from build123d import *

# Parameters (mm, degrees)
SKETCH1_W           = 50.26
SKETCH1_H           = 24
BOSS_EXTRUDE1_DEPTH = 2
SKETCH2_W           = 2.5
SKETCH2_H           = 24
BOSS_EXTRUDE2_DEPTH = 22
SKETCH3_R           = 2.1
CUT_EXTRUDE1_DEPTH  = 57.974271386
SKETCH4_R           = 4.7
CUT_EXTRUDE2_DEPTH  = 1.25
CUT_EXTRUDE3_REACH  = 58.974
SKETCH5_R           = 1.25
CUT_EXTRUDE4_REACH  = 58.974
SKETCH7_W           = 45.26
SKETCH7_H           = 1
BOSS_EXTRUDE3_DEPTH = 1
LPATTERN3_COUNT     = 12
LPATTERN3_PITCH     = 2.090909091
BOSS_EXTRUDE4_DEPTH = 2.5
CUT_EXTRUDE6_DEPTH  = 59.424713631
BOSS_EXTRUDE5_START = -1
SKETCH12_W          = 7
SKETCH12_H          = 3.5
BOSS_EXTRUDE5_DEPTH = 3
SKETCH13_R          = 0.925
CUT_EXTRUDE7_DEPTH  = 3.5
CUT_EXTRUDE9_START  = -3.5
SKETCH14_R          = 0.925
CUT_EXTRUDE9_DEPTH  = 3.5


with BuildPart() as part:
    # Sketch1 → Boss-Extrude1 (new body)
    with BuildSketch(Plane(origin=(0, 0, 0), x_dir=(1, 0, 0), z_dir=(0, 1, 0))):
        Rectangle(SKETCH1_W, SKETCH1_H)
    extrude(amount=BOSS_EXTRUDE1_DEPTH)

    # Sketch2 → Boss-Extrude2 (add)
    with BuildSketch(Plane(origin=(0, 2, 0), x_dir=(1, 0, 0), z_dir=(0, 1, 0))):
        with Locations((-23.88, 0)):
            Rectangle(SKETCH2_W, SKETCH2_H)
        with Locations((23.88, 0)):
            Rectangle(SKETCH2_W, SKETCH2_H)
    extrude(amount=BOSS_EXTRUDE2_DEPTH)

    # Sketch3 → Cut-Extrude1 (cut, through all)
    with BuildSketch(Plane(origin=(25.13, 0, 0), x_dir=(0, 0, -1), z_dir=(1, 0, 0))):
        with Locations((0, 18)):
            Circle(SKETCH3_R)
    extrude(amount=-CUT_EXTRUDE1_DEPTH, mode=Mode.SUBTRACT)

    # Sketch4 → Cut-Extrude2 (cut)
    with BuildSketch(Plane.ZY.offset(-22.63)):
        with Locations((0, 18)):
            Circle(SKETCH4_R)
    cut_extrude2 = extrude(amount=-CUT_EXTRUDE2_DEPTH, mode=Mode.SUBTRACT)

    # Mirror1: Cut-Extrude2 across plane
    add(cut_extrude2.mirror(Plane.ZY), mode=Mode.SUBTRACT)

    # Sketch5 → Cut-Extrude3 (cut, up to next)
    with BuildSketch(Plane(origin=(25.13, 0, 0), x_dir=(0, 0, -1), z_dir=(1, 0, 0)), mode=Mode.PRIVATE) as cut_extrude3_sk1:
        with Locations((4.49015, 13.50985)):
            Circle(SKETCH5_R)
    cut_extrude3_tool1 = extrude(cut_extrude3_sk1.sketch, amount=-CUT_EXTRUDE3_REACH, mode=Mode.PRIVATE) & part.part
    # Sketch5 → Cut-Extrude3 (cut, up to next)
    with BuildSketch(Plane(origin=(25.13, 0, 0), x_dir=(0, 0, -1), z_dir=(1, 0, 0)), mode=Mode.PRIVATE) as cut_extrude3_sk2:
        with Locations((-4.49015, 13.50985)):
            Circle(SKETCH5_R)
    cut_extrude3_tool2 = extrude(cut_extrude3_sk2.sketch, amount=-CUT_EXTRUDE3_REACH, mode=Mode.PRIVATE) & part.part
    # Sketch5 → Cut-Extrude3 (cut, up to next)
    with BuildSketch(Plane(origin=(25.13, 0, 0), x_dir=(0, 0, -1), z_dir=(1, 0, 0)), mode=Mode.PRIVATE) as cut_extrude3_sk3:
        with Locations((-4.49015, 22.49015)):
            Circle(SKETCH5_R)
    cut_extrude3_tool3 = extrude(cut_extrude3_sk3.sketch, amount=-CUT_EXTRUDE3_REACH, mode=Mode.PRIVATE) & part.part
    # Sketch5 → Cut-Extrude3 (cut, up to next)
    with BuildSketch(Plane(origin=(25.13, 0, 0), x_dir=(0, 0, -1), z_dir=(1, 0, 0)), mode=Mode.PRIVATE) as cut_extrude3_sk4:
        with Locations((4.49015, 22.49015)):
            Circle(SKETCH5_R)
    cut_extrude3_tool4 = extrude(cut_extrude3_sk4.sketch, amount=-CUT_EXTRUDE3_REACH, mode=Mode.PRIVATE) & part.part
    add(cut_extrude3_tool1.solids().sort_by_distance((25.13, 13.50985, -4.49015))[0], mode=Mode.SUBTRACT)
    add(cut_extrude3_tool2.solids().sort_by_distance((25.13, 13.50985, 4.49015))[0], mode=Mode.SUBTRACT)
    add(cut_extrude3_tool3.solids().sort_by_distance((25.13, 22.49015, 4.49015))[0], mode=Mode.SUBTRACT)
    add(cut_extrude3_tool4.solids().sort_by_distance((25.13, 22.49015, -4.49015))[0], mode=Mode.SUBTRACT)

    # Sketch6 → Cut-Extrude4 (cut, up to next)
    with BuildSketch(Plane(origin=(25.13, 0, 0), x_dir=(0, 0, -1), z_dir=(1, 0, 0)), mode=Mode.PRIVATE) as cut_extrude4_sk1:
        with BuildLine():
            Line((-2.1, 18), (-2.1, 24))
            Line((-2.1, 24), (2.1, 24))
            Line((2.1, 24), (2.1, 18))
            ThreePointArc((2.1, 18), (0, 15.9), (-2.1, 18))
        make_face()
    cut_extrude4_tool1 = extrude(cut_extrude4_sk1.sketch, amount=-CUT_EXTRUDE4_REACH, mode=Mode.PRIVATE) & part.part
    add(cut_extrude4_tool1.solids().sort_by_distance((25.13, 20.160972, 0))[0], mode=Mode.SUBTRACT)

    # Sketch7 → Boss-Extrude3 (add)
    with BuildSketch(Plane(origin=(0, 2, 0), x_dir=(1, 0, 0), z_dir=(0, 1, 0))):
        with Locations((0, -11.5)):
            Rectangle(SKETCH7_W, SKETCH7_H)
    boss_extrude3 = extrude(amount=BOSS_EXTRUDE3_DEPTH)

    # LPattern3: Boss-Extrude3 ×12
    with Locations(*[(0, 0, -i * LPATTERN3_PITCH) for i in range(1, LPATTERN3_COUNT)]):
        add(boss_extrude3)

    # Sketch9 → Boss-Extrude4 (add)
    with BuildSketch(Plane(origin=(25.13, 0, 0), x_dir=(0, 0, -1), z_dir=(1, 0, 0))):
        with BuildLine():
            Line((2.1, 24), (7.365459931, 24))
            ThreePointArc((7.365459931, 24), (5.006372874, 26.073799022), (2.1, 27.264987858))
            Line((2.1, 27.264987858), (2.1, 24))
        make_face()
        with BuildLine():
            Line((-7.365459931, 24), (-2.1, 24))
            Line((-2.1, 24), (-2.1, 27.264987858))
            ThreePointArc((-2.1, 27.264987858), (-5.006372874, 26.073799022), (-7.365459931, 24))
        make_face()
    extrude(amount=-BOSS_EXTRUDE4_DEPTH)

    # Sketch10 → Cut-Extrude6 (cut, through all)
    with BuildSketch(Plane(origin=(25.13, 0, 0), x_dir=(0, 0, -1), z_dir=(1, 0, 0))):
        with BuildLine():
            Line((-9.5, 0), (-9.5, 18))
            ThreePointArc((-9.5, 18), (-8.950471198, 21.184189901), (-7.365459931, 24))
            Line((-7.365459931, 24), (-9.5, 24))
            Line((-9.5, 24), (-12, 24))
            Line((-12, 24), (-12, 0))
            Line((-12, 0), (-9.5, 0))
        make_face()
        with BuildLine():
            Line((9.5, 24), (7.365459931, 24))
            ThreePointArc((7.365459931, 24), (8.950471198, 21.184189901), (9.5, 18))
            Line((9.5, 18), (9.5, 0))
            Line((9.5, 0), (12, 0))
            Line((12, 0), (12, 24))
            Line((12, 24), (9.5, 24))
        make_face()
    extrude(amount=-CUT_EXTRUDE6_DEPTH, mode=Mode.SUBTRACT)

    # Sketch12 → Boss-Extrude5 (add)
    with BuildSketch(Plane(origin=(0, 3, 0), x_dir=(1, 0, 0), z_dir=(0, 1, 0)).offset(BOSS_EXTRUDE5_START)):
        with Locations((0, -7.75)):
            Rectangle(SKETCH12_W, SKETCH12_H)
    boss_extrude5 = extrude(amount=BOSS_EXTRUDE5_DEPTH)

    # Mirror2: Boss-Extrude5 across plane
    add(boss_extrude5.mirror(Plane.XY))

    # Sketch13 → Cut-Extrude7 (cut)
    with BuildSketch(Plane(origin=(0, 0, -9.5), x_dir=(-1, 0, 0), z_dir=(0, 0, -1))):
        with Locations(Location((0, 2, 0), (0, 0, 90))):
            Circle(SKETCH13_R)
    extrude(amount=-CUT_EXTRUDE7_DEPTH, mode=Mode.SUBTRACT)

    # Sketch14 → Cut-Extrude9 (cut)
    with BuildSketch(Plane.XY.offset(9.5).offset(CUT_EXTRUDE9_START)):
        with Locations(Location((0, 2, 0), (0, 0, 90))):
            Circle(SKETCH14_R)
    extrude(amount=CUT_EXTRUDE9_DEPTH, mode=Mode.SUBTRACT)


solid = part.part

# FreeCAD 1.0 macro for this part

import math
import FreeCAD as App
import Part
import Sketcher

V = App.Vector
Q = App.Units.Quantity

doc = App.newDocument("Part")
body = doc.addObject("PartDesign::Body", "Body")

sketch1 = body.newObject("Sketcher::SketchObject", "Sketch")
sketch1.AttachmentSupport = (doc.getObject("XZ_Plane"), [""])
sketch1.MapMode = "FlatFace"
sketch1.addGeometry(Part.LineSegment(V(-25, -12, 0), V(-25, 12, 0)), False)
sketch1.addGeometry(Part.LineSegment(V(-25, 12, 0), V(25, 12, 0)), False)
sketch1.addGeometry(Part.LineSegment(V(25, 12, 0), V(25, -12, 0)), False)
sketch1.addGeometry(Part.LineSegment(V(25, -12, 0), V(-25, -12, 0)), False)
sketch1.addConstraint(Sketcher.Constraint("Coincident", 0, 2, 1, 1))
sketch1.addConstraint(Sketcher.Constraint("Coincident", 1, 2, 2, 1))
sketch1.addConstraint(Sketcher.Constraint("Coincident", 2, 2, 3, 1))
sketch1.addConstraint(Sketcher.Constraint("Coincident", 3, 2, 0, 1))
sketch1.addConstraint(Sketcher.Constraint("Vertical", 0))
sketch1.addConstraint(Sketcher.Constraint("Horizontal", 1))
sketch1.addConstraint(Sketcher.Constraint("Vertical", 2))
sketch1.addConstraint(Sketcher.Constraint("Horizontal", 3))
sketch1.addConstraint(Sketcher.Constraint("Symmetric", 0, 2, 2, 2, -1, 1))
sketch1.addConstraint(Sketcher.Constraint("DistanceY", 0, 1, 0, 2, Q("24 mm")))
sketch1.addConstraint(Sketcher.Constraint("DistanceX", 1, 1, 1, 2, Q("50.26 mm")))
pad1 = body.newObject("PartDesign::Pad", "Pad")
pad1.Profile = sketch1
pad1.Length = 2
pad1.Reversed = True

sketch2 = body.newObject("Sketcher::SketchObject", "Sketch001")
sketch2.AttachmentSupport = (doc.getObject("XZ_Plane"), [""])
sketch2.MapMode = "FlatFace"
sketch2.AttachmentOffset = App.Placement(V(0, 0, -2), App.Rotation())
sketch2.addGeometry(Part.LineSegment(V(-25.1, -12, 0), V(-25.1, 12, 0)), False)
sketch2.addGeometry(Part.LineSegment(V(-25.1, 12, 0), V(-22.6, 12, 0)), False)
sketch2.addGeometry(Part.LineSegment(V(-22.6, 12, 0), V(-22.6, -12, 0)), False)
sketch2.addGeometry(Part.LineSegment(V(-22.6, -12, 0), V(-25.1, -12, 0)), False)
sketch2.addGeometry(Part.LineSegment(V(22.6, -12, 0), V(22.6, 12, 0)), False)
sketch2.addGeometry(Part.LineSegment(V(22.6, 12, 0), V(25.1, 12, 0)), False)
sketch2.addGeometry(Part.LineSegment(V(25.1, 12, 0), V(25.1, -12, 0)), False)
sketch2.addGeometry(Part.LineSegment(V(25.1, -12, 0), V(22.6, -12, 0)), False)
sketch2.addConstraint(Sketcher.Constraint("Coincident", 0, 2, 1, 1))
sketch2.addConstraint(Sketcher.Constraint("Coincident", 1, 2, 2, 1))
sketch2.addConstraint(Sketcher.Constraint("Coincident", 2, 2, 3, 1))
sketch2.addConstraint(Sketcher.Constraint("Coincident", 3, 2, 0, 1))
sketch2.addConstraint(Sketcher.Constraint("Coincident", 4, 2, 5, 1))
sketch2.addConstraint(Sketcher.Constraint("Coincident", 5, 2, 6, 1))
sketch2.addConstraint(Sketcher.Constraint("Coincident", 6, 2, 7, 1))
sketch2.addConstraint(Sketcher.Constraint("Coincident", 7, 2, 4, 1))
sketch2.addConstraint(Sketcher.Constraint("Vertical", 0))
sketch2.addConstraint(Sketcher.Constraint("Horizontal", 1))
sketch2.addConstraint(Sketcher.Constraint("Vertical", 2))
sketch2.addConstraint(Sketcher.Constraint("Horizontal", 3))
sketch2.addConstraint(Sketcher.Constraint("Vertical", 4))
sketch2.addConstraint(Sketcher.Constraint("Horizontal", 5))
sketch2.addConstraint(Sketcher.Constraint("Vertical", 6))
sketch2.addConstraint(Sketcher.Constraint("Horizontal", 7))
sketch2.addConstraint(Sketcher.Constraint("Symmetric", 2, 2, 4, 2, -1, 1))
sketch2.addConstraint(Sketcher.Constraint("Symmetric", 0, 2, 6, 2, -1, 1))
sketch2.addConstraint(Sketcher.Constraint("Horizontal", 1, 2, 4, 2))
sketch2.addConstraint(Sketcher.Constraint("DistanceY", 0, 1, 0, 2, Q("24 mm")))
sketch2.addConstraint(Sketcher.Constraint("DistanceX", 1, 1, 1, 2, Q("2.5 mm")))
sketch2.addConstraint(Sketcher.Constraint("DistanceX", 0, 2, -1, 1, Q("25.13 mm")))
pad2 = body.newObject("PartDesign::Pad", "Pad001")
pad2.Profile = sketch2
pad2.Length = 22
pad2.Reversed = True

sketch3 = body.newObject("Sketcher::SketchObject", "Sketch002")
sketch3.AttachmentSupport = (doc.getObject("YZ_Plane"), [""])
sketch3.MapMode = "FlatFace"
sketch3.AttachmentOffset = App.Placement(V(0, 0, 25.13), App.Rotation())
sketch3.addGeometry(Part.Circle(V(18, 0, 0), V(0, 0, 1), 2.1), False)
sketch3.addConstraint(Sketcher.Constraint("PointOnObject", 0, 3, -1))
sketch3.addConstraint(Sketcher.Constraint("Diameter", 0, Q("4.2 mm")))
sketch3.addConstraint(Sketcher.Constraint("DistanceX", -1, 1, 0, 3, Q("18 mm")))
pocket1 = body.newObject("PartDesign::Pocket", "Pocket")
pocket1.Profile = sketch3
pocket1.Type = "ThroughAll"

sketch4 = body.newObject("Sketcher::SketchObject", "Sketch003")
sketch4.AttachmentSupport = (doc.getObject("YZ_Plane"), [""])
sketch4.MapMode = "FlatFace"
sketch4.AttachmentOffset = App.Placement(V(0, 0, 22.63), App.Rotation())
sketch4.addGeometry(Part.Circle(V(18, 0, 0), V(0, 0, 1), 4.7), False)
sketch4.addConstraint(Sketcher.Constraint("PointOnObject", 0, 3, -1))
sketch4.addConstraint(Sketcher.Constraint("Diameter", 0, Q("9.4 mm")))
sketch4.addConstraint(Sketcher.Constraint("DistanceX", -1, 1, 0, 3, Q("18 mm")))
pocket2 = body.newObject("PartDesign::Pocket", "Pocket001")
pocket2.Profile = sketch4
pocket2.Length = 1.25
pocket2.Reversed = True
doc.recompute()

mirrored = body.newObject("PartDesign::Mirrored", "Mirrored")
mirrored.Originals = [pocket2]
mirrored.MirrorPlane = (doc.getObject("YZ_Plane"), [""])
body.Tip = mirrored

sketch5 = body.newObject("Sketcher::SketchObject", "Sketch004")
sketch5.AttachmentSupport = (doc.getObject("YZ_Plane"), [""])
sketch5.MapMode = "FlatFace"
sketch5.AttachmentOffset = App.Placement(V(0, 0, 25.13), App.Rotation())
sketch5.addGeometry(Part.Circle(V(13.5, -4.5, 0), V(0, 0, 1), 1.2), False)
sketch5.addConstraint(Sketcher.Constraint("Diameter", 0, Q("2.5 mm")))
sketch5.addConstraint(Sketcher.Constraint("DistanceX", -1, 1, 0, 3, Q("13.50985 mm")))
sketch5.addConstraint(Sketcher.Constraint("DistanceY", 0, 3, -1, 1, Q("4.49015 mm")))
pocket3 = body.newObject("PartDesign::Pocket", "Pocket002")
pocket3.Profile = sketch5
pocket3.Type = "UpToFirst"

sketch6 = body.newObject("Sketcher::SketchObject", "Sketch005")
sketch6.AttachmentSupport = (doc.getObject("YZ_Plane"), [""])
sketch6.MapMode = "FlatFace"
sketch6.AttachmentOffset = App.Placement(V(0, 0, 25.13), App.Rotation())
sketch6.addGeometry(Part.Circle(V(13.5, 4.5, 0), V(0, 0, 1), 1.2), False)
sketch6.addConstraint(Sketcher.Constraint("Diameter", 0, Q("2.5 mm")))
sketch6.addConstraint(Sketcher.Constraint("DistanceX", -1, 1, 0, 3, Q("13.50985 mm")))
sketch6.addConstraint(Sketcher.Constraint("DistanceY", -1, 1, 0, 3, Q("4.49015 mm")))
pocket4 = body.newObject("PartDesign::Pocket", "Pocket003")
pocket4.Profile = sketch6
pocket4.Type = "UpToFirst"

sketch7 = body.newObject("Sketcher::SketchObject", "Sketch006")
sketch7.AttachmentSupport = (doc.getObject("YZ_Plane"), [""])
sketch7.MapMode = "FlatFace"
sketch7.AttachmentOffset = App.Placement(V(0, 0, 25.13), App.Rotation())
sketch7.addGeometry(Part.Circle(V(22.5, 4.5, 0), V(0, 0, 1), 1.2), False)
sketch7.addConstraint(Sketcher.Constraint("Diameter", 0, Q("2.5 mm")))
sketch7.addConstraint(Sketcher.Constraint("DistanceX", -1, 1, 0, 3, Q("22.49015 mm")))
sketch7.addConstraint(Sketcher.Constraint("DistanceY", -1, 1, 0, 3, Q("4.49015 mm")))
pocket5 = body.newObject("PartDesign::Pocket", "Pocket004")
pocket5.Profile = sketch7
pocket5.Type = "UpToFirst"

sketch8 = body.newObject("Sketcher::SketchObject", "Sketch007")
sketch8.AttachmentSupport = (doc.getObject("YZ_Plane"), [""])
sketch8.MapMode = "FlatFace"
sketch8.AttachmentOffset = App.Placement(V(0, 0, 25.13), App.Rotation())
sketch8.addGeometry(Part.Circle(V(22.5, -4.5, 0), V(0, 0, 1), 1.2), False)
sketch8.addConstraint(Sketcher.Constraint("Diameter", 0, Q("2.5 mm")))
sketch8.addConstraint(Sketcher.Constraint("DistanceX", -1, 1, 0, 3, Q("22.49015 mm")))
sketch8.addConstraint(Sketcher.Constraint("DistanceY", 0, 3, -1, 1, Q("4.49015 mm")))
pocket6 = body.newObject("PartDesign::Pocket", "Pocket005")
pocket6.Profile = sketch8
pocket6.Type = "UpToFirst"

sketch9 = body.newObject("Sketcher::SketchObject", "Sketch008")
sketch9.AttachmentSupport = (doc.getObject("YZ_Plane"), [""])
sketch9.MapMode = "FlatFace"
sketch9.AttachmentOffset = App.Placement(V(0, 0, 25.13), App.Rotation())
sketch9.addGeometry(Part.LineSegment(V(24, 2.1, 0), V(18, 2.1, 0)), False)
sketch9.addGeometry(Part.ArcOfCircle(Part.Circle(V(18, 0, 0), V(0, 0, 1), 2.1), math.radians(90), math.radians(270)), False)
sketch9.addGeometry(Part.LineSegment(V(18, -2.1, 0), V(24, -2.1, 0)), False)
sketch9.addGeometry(Part.LineSegment(V(24, -2.1, 0), V(24, 2.1, 0)), False)
sketch9.addConstraint(Sketcher.Constraint("Tangent", 0, 2, 1, 1))
sketch9.addConstraint(Sketcher.Constraint("Tangent", 1, 2, 2, 1))
sketch9.addConstraint(Sketcher.Constraint("Coincident", 2, 2, 3, 1))
sketch9.addConstraint(Sketcher.Constraint("Coincident", 3, 2, 0, 1))
sketch9.addConstraint(Sketcher.Constraint("Horizontal", 0))
sketch9.addConstraint(Sketcher.Constraint("Horizontal", 2))
sketch9.addConstraint(Sketcher.Constraint("Vertical", 3))
sketch9.addConstraint(Sketcher.Constraint("PointOnObject", 1, 3, -1))
sketch9.addConstraint(Sketcher.Constraint("Radius", 1, Q("2.1 mm")))
sketch9.addConstraint(Sketcher.Constraint("DistanceX", 0, 2, 0, 1, Q("6 mm")))
sketch9.addConstraint(Sketcher.Constraint("DistanceX", -1, 1, 1, 3, Q("18 mm")))
pocket7 = body.newObject("PartDesign::Pocket", "Pocket006")
pocket7.Profile = sketch9
pocket7.Length = 2.5

sketch10 = body.newObject("Sketcher::SketchObject", "Sketch009")
sketch10.AttachmentSupport = (doc.getObject("XZ_Plane"), [""])
sketch10.MapMode = "FlatFace"
sketch10.AttachmentOffset = App.Placement(V(0, 0, -2), App.Rotation())
sketch10.addGeometry(Part.LineSegment(V(-22.6, 11, 0), V(-22.6, 12, 0)), False)
sketch10.addGeometry(Part.LineSegment(V(-22.6, 12, 0), V(22.6, 12, 0)), False)
sketch10.addGeometry(Part.LineSegment(V(22.6, 12, 0), V(22.6, 11, 0)), False)
sketch10.addGeometry(Part.LineSegment(V(22.6, 11, 0), V(-22.6, 11, 0)), False)
sketch10.addConstraint(Sketcher.Constraint("Coincident", 0, 2, 1, 1))
sketch10.addConstraint(Sketcher.Constraint("Coincident", 1, 2, 2, 1))
sketch10.addConstraint(Sketcher.Constraint("Coincident", 2, 2, 3, 1))
sketch10.addConstraint(Sketcher.Constraint("Coincident", 3, 2, 0, 1))
sketch10.addConstraint(Sketcher.Constraint("Vertical", 0))
sketch10.addConstraint(Sketcher.Constraint("Horizontal", 1))
sketch10.addConstraint(Sketcher.Constraint("Vertical", 2))
sketch10.addConstraint(Sketcher.Constraint("Horizontal", 3))
sketch10.addConstraint(Sketcher.Constraint("DistanceY", 0, 1, 0, 2, Q("1 mm")))
sketch10.addConstraint(Sketcher.Constraint("DistanceY", -1, 1, 0, 2, Q("12 mm")))
sketch10.addConstraint(Sketcher.Constraint("DistanceX", 1, 1, 1, 2, Q("45.26 mm")))
sketch10.addConstraint(Sketcher.Constraint("DistanceX", 0, 2, -1, 1, Q("22.63 mm")))
pad3 = body.newObject("PartDesign::Pad", "Pad002")
pad3.Profile = sketch10
pad3.Length = 1
pad3.Reversed = True
doc.recompute()

linearpattern = body.newObject("PartDesign::LinearPattern", "LinearPattern")
linearpattern.Originals = [pad3]
linearpattern.Direction = (doc.getObject("Z_Axis"), [""])
linearpattern.Mode = "offset"
linearpattern.Offset = 2.090909
linearpattern.Occurrences = 12
linearpattern.Reversed = True
body.Tip = linearpattern

sketch11 = body.newObject("Sketcher::SketchObject", "Sketch010")
sketch11.AttachmentSupport = (doc.getObject("YZ_Plane"), [""])
sketch11.MapMode = "FlatFace"
sketch11.AttachmentOffset = App.Placement(V(0, 0, 25.13), App.Rotation())
sketch11.addGeometry(Part.LineSegment(V(24, -2.1, 0), V(24, -7.4, 0)), False)
sketch11.addGeometry(Part.ArcOfCircle(Part.Circle(V(18, 0, 0), V(0, 0, 1), 9.5), math.radians(-51), math.radians(-13)), False)
sketch11.addGeometry(Part.LineSegment(V(27.3, -2.1, 0), V(24, -2.1, 0)), False)
sketch11.addGeometry(Part.LineSegment(V(24, 7.4, 0), V(24, 2.1, 0)), False)
sketch11.addGeometry(Part.LineSegment(V(24, 2.1, 0), V(27.3, 2.1, 0)), False)
sketch11.addGeometry(Part.ArcOfCircle(Part.Circle(V(18, 0, 0), V(0, 0, 1), 9.5), math.radians(13), math.radians(51)), False)
sketch11.addConstraint(Sketcher.Constraint("Coincident", 0, 2, 1, 1))
sketch11.addConstraint(Sketcher.Constraint("Coincident", 1, 2, 2, 1))
sketch11.addConstraint(Sketcher.Constraint("Coincident", 2, 2, 0, 1))
sketch11.addConstraint(Sketcher.Constraint("Coincident", 3, 2, 4, 1))
sketch11.addConstraint(Sketcher.Constraint("Coincident", 4, 2, 5, 1))
sketch11.addConstraint(Sketcher.Constraint("Coincident", 5, 2, 3, 1))
sketch11.addConstraint(Sketcher.Constraint("Vertical", 0))
sketch11.addConstraint(Sketcher.Constraint("Horizontal", 2))
sketch11.addConstraint(Sketcher.Constraint("Vertical", 3))
sketch11.addConstraint(Sketcher.Constraint("Horizontal", 4))
sketch11.addConstraint(Sketcher.Constraint("Coincident", 5, 3, 1, 3))
sketch11.addConstraint(Sketcher.Constraint("Equal", 1, 5))
sketch11.addConstraint(Sketcher.Constraint("Symmetric", 2, 2, 3, 2, -1))
sketch11.addConstraint(Sketcher.Constraint("PointOnObject", 1, 3, -1))
sketch11.addConstraint(Sketcher.Constraint("Radius", 1, Q("9.5 mm")))
sketch11.addConstraint(Sketcher.Constraint("DistanceX", -1, 1, 1, 3, Q("18 mm")))
sketch11.addConstraint(Sketcher.Constraint("DistanceX", -1, 1, 0, 2, Q("24 mm")))
sketch11.addConstraint(Sketcher.Constraint("DistanceY", 1, 2, -1, 1, Q("2.1 mm")))
pad4 = body.newObject("PartDesign::Pad", "Pad003")
pad4.Profile = sketch11
pad4.Length = 2.5
pad4.Reversed = True

sketch12 = body.newObject("Sketcher::SketchObject", "Sketch011")
sketch12.AttachmentSupport = (doc.getObject("YZ_Plane"), [""])
sketch12.MapMode = "FlatFace"
sketch12.AttachmentOffset = App.Placement(V(0, 0, 25.13), App.Rotation())
sketch12.addGeometry(Part.LineSegment(V(0, 9.5, 0), V(18, 9.5, 0)), False)
sketch12.addGeometry(Part.ArcOfCircle(Part.Circle(V(18, 0, 0), V(0, 0, 1), 9.5), math.radians(51), math.radians(90)), False)
sketch12.addGeometry(Part.LineSegment(V(24, 7.4, 0), V(24, 12, 0)), False)
sketch12.addGeometry(Part.LineSegment(V(24, 12, 0), V(0, 12, 0)), False)
sketch12.addGeometry(Part.LineSegment(V(0, 12, 0), V(0, 9.5, 0)), False)
sketch12.addGeometry(Part.ArcOfCircle(Part.Circle(V(18, 0, 0), V(0, 0, 1), 9.5), math.radians(-90), math.radians(-51)), False)
sketch12.addGeometry(Part.LineSegment(V(18, -9.5, 0), V(0, -9.5, 0)), False)
sketch12.addGeometry(Part.LineSegment(V(0, -9.5, 0), V(0, -12, 0)), False)
sketch12.addGeometry(Part.LineSegment(V(0, -12, 0), V(24, -12, 0)), False)
sketch12.addGeometry(Part.LineSegment(V(24, -12, 0), V(24, -7.4, 0)), False)
sketch12.addConstraint(Sketcher.Constraint("Tangent", 0, 2, 1, 2))
sketch12.addConstraint(Sketcher.Constraint("Coincident", 1, 1, 2, 1))
sketch12.addConstraint(Sketcher.Constraint("Coincident", 2, 2, 3, 1))
sketch12.addConstraint(Sketcher.Constraint("Coincident", 3, 2, 4, 1))
sketch12.addConstraint(Sketcher.Constraint("Coincident", 4, 2, 0, 1))
sketch12.addConstraint(Sketcher.Constraint("Tangent", 5, 1, 6, 1))
sketch12.addConstraint(Sketcher.Constraint("Coincident", 6, 2, 7, 1))
sketch12.addConstraint(Sketcher.Constraint("Coincident", 7, 2, 8, 1))
sketch12.addConstraint(Sketcher.Constraint("Coincident", 8, 2, 9, 1))
sketch12.addConstraint(Sketcher.Constraint("Coincident", 9, 2, 5, 2))
sketch12.addConstraint(Sketcher.Constraint("Horizontal", 0))
sketch12.addConstraint(Sketcher.Constraint("Vertical", 2))
sketch12.addConstraint(Sketcher.Constraint("Horizontal", 3))
sketch12.addConstraint(Sketcher.Constraint("Vertical", 4))
sketch12.addConstraint(Sketcher.Constraint("Horizontal", 6))
sketch12.addConstraint(Sketcher.Constraint("Vertical", 7))
sketch12.addConstraint(Sketcher.Constraint("Horizontal", 8))
sketch12.addConstraint(Sketcher.Constraint("Vertical", 9))
sketch12.addConstraint(Sketcher.Constraint("Coincident", 5, 3, 1, 3))
sketch12.addConstraint(Sketcher.Constraint("Equal", 1, 5))
sketch12.addConstraint(Sketcher.Constraint("Symmetric", 4, 2, 6, 2, -1, 1))
sketch12.addConstraint(Sketcher.Constraint("Symmetric", 3, 2, 7, 2, -1))
sketch12.addConstraint(Sketcher.Constraint("Vertical", 2, 2, 8, 2))
sketch12.addConstraint(Sketcher.Constraint("Radius", 1, Q("9.5 mm")))
sketch12.addConstraint(Sketcher.Constraint("DistanceX", 0, 1, 0, 2, Q("18 mm")))
sketch12.addConstraint(Sketcher.Constraint("DistanceX", 3, 2, 3, 1, Q("24 mm")))
sketch12.addConstraint(Sketcher.Constraint("DistanceY", 4, 2, 4, 1, Q("2.5 mm")))
pocket8 = body.newObject("PartDesign::Pocket", "Pocket007")
pocket8.Profile = sketch12
pocket8.Type = "ThroughAll"

sketch13 = body.newObject("Sketcher::SketchObject", "Sketch012")
sketch13.AttachmentSupport = (doc.getObject("XZ_Plane"), [""])
sketch13.MapMode = "FlatFace"
sketch13.AttachmentOffset = App.Placement(V(0, 0, -2), App.Rotation())
sketch13.addGeometry(Part.LineSegment(V(-3.5, 6, 0), V(-3.5, 9.5, 0)), False)
sketch13.addGeometry(Part.LineSegment(V(-3.5, 9.5, 0), V(3.5, 9.5, 0)), False)
sketch13.addGeometry(Part.LineSegment(V(3.5, 9.5, 0), V(3.5, 6, 0)), False)
sketch13.addGeometry(Part.LineSegment(V(3.5, 6, 0), V(-3.5, 6, 0)), False)
sketch13.addConstraint(Sketcher.Constraint("Coincident", 0, 2, 1, 1))
sketch13.addConstraint(Sketcher.Constraint("Coincident", 1, 2, 2, 1))
sketch13.addConstraint(Sketcher.Constraint("Coincident", 2, 2, 3, 1))
sketch13.addConstraint(Sketcher.Constraint("Coincident", 3, 2, 0, 1))
sketch13.addConstraint(Sketcher.Constraint("Vertical", 0))
sketch13.addConstraint(Sketcher.Constraint("Horizontal", 1))
sketch13.addConstraint(Sketcher.Constraint("Vertical", 2))
sketch13.addConstraint(Sketcher.Constraint("Horizontal", 3))
sketch13.addConstraint(Sketcher.Constraint("DistanceX", 1, 1, 1, 2, Q("7 mm")))
sketch13.addConstraint(Sketcher.Constraint("DistanceY", 0, 1, 0, 2, Q("3.5 mm")))
sketch13.addConstraint(Sketcher.Constraint("DistanceY", -1, 1, 2, 2, Q("6 mm")))
sketch13.addConstraint(Sketcher.Constraint("DistanceX", 0, 2, -1, 1, Q("3.5 mm")))
pad5 = body.newObject("PartDesign::Pad", "Pad004")
pad5.Profile = sketch13
pad5.Length = 3
pad5.Reversed = True
doc.recompute()

mirrored2 = body.newObject("PartDesign::Mirrored", "Mirrored001")
mirrored2.Originals = [pad5]
mirrored2.MirrorPlane = (doc.getObject("XY_Plane"), [""])
body.Tip = mirrored2

sketch14 = body.newObject("Sketcher::SketchObject", "Sketch013")
sketch14.AttachmentSupport = (doc.getObject("XY_Plane"), [""])
sketch14.MapMode = "FlatFace"
sketch14.AttachmentOffset = App.Placement(V(0, 0, -9.5), App.Rotation())
sketch14.addGeometry(Part.Circle(V(0, 2, 0), V(0, 0, 1), 0.9), False)
sketch14.addConstraint(Sketcher.Constraint("PointOnObject", 0, 3, -2))
sketch14.addConstraint(Sketcher.Constraint("Diameter", 0, Q("1.85 mm")))
sketch14.addConstraint(Sketcher.Constraint("DistanceY", -1, 1, 0, 3, Q("2 mm")))
pocket9 = body.newObject("PartDesign::Pocket", "Pocket008")
pocket9.Profile = sketch14
pocket9.Length = 3.5
pocket9.Reversed = True

sketch15 = body.newObject("Sketcher::SketchObject", "Sketch014")
sketch15.AttachmentSupport = (doc.getObject("XY_Plane"), [""])
sketch15.MapMode = "FlatFace"
sketch15.AttachmentOffset = App.Placement(V(0, 0, 6), App.Rotation())
sketch15.addGeometry(Part.Circle(V(0, 2, 0), V(0, 0, 1), 0.9), False)
sketch15.addConstraint(Sketcher.Constraint("PointOnObject", 0, 3, -2))
sketch15.addConstraint(Sketcher.Constraint("Diameter", 0, Q("1.85 mm")))
sketch15.addConstraint(Sketcher.Constraint("DistanceY", -1, 1, 0, 3, Q("2 mm")))
pocket10 = body.newObject("PartDesign::Pocket", "Pocket009")
pocket10.Profile = sketch15
pocket10.Length = 3.5
pocket10.Reversed = True

doc.recompute()
